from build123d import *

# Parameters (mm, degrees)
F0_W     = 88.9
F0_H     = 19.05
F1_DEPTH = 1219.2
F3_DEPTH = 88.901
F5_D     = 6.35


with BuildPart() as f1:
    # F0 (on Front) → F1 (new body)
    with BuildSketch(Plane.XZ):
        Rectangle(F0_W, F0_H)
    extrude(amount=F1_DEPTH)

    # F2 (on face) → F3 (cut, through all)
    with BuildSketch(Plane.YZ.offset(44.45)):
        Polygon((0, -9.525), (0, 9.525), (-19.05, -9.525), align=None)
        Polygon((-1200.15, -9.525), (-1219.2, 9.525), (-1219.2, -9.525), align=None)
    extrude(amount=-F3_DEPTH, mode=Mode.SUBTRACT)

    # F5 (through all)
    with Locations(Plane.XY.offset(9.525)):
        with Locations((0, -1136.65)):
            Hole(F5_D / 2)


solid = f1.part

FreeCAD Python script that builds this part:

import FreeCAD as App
import Part
import Sketcher
Q = App.Units.Quantity

doc = App.newDocument("Part")
params = doc.addObject("Spreadsheet::Sheet", "Params")
for row, (alias, value) in enumerate([
    ("sketch1_width", "3.5 in"),
    ("sketch1_height", "0.75 in"),
    ("pad1_length", "48 in"),
    ("sketch2_width", "0.75 in"),
    ("sketch3_diameter", "0.25 in"),
    ("hole_diameter", "0.25 in"),
], start=1):
    params.set(f"A{row}", alias)
    params.set(f"B{row}", "=" + value)
    params.setAlias(f"B{row}", alias)

body = doc.addObject("PartDesign::Body", "Body")

# Sketch on XZ plane
sketch1 = doc.addObject("Sketcher::SketchObject", "Sketch")
body.addObject(sketch1)
sketch1.AttachmentSupport = (doc.XZ_Plane, [""])
sketch1.MapMode = "FlatFace"
sketch1.addGeometry(Part.LineSegment(App.Vector(-44, 10, 0), App.Vector(-44, -10, 0)), False)
sketch1.addGeometry(Part.LineSegment(App.Vector(-44, -10, 0), App.Vector(44, -10, 0)), False)
sketch1.addGeometry(Part.LineSegment(App.Vector(44, -10, 0), App.Vector(44, 10, 0)), False)
sketch1.addGeometry(Part.LineSegment(App.Vector(44, 10, 0), App.Vector(-44, 10, 0)), False)
sketch1.addConstraint(Sketcher.Constraint("Coincident", 0, 2, 1, 1))
sketch1.addConstraint(Sketcher.Constraint("Coincident", 1, 2, 2, 1))
sketch1.addConstraint(Sketcher.Constraint("Coincident", 2, 2, 3, 1))
sketch1.addConstraint(Sketcher.Constraint("Coincident", 3, 2, 0, 1))
sketch1.addConstraint(Sketcher.Constraint("Vertical", 0))
sketch1.addConstraint(Sketcher.Constraint("Horizontal", 1))
sketch1.addConstraint(Sketcher.Constraint("Vertical", 2))
sketch1.addConstraint(Sketcher.Constraint("Horizontal", 3))
sketch1.addConstraint(Sketcher.Constraint("Symmetric", 0, 2, 2, 2, -1, 1))
sketch1.addConstraint(Sketcher.Constraint("DistanceX", 1, 1, 1, 2, Q("3.5 in")))
sketch1.addConstraint(Sketcher.Constraint("DistanceY", 0, 2, 0, 1, Q("0.75 in")))
sketch1.setExpression("Constraints[9]", "Params.sketch1_width")
sketch1.setExpression("Constraints[10]", "Params.sketch1_height")
pad1 = doc.addObject("PartDesign::Pad", "Pad")
body.addObject(pad1)
pad1.Profile = sketch1
pad1.setExpression("Length", "Params.pad1_length")

# Sketch on YZ plane
sketch2 = doc.addObject("Sketcher::SketchObject", "Sketch001")
body.addObject(sketch2)
sketch2.AttachmentSupport = (doc.YZ_Plane, [""])
sketch2.MapMode = "FlatFace"
sketch2.AttachmentOffset = App.Placement(App.Vector(0, 0, 1.75 * 25.4), App.Rotation())
sketch2.addGeometry(Part.LineSegment(App.Vector(0, -10, 0), App.Vector(0, 10, 0)), False)
sketch2.addGeometry(Part.LineSegment(App.Vector(0, 10, 0), App.Vector(-19, -10, 0)), False)
sketch2.addGeometry(Part.LineSegment(App.Vector(-19, -10, 0), App.Vector(0, -10, 0)), False)
sketch2.addGeometry(Part.LineSegment(App.Vector(-1200, -10, 0), App.Vector(-1219, 10, 0)), False)
sketch2.addGeometry(Part.LineSegment(App.Vector(-1219, 10, 0), App.Vector(-1219, -10, 0)), False)
sketch2.addGeometry(Part.LineSegment(App.Vector(-1219, -10, 0), App.Vector(-1200, -10, 0)), False)
sketch2.addConstraint(Sketcher.Constraint("Coincident", 0, 2, 1, 1))
sketch2.addConstraint(Sketcher.Constraint("Coincident", 1, 2, 2, 1))
sketch2.addConstraint(Sketcher.Constraint("Coincident", 2, 2, 0, 1))
sketch2.addConstraint(Sketcher.Constraint("Coincident", 3, 2, 4, 1))
sketch2.addConstraint(Sketcher.Constraint("Coincident", 4, 2, 5, 1))
sketch2.addConstraint(Sketcher.Constraint("Coincident", 5, 2, 3, 1))
sketch2.addConstraint(Sketcher.Constraint("Vertical", 0))
sketch2.addConstraint(Sketcher.Constraint("Horizontal", 2))
sketch2.addConstraint(Sketcher.Constraint("Vertical", 4))
sketch2.addConstraint(Sketcher.Constraint("Horizontal", 5))
sketch2.addConstraint(Sketcher.Constraint("Symmetric", 0, 2, 2, 2, -1, 1))
sketch2.addConstraint(Sketcher.Constraint("Perpendicular", 1, 3))
sketch2.addConstraint(Sketcher.Constraint("Horizontal", 0, 2, 3, 2))
sketch2.addConstraint(Sketcher.Constraint("Horizontal", 2, 2, 4, 2))
sketch2.addConstraint(Sketcher.Constraint("Equal", 2, 5))
sketch2.addConstraint(Sketcher.Constraint("DistanceX", 3, 2, -1, 1, Q("48 in")))
sketch2.addConstraint(Sketcher.Constraint("DistanceX", 2, 1, 2, 2, Q("0.75 in")))
sketch2.setExpression("Constraints[16]", "Params.sketch2_width")
pocket1 = doc.addObject("PartDesign::Pocket", "Pocket")
body.addObject(pocket1)
pocket1.Profile = sketch2
pocket1.Type = "ThroughAll"

# Sketch on XY plane
sketch3 = doc.addObject("Sketcher::SketchObject", "Sketch002")
body.addObject(sketch3)
sketch3.AttachmentSupport = (doc.XY_Plane, [""])
sketch3.MapMode = "FlatFace"
sketch3.AttachmentOffset = App.Placement(App.Vector(0, 0, 0.375 * 25.4), App.Rotation())
sketch3.addGeometry(Part.Circle(App.Vector(0, -1136.7, 0), App.Vector(0, 0, 1), 3.2), False)
sketch3.addConstraint(Sketcher.Constraint("PointOnObject", 0, 3, -2))
sketch3.addConstraint(Sketcher.Constraint("Diameter", 0, Q("0.25 in")))
sketch3.addConstraint(Sketcher.Constraint("DistanceY", 0, 3, -1, 1, Q("44.75 in")))
sketch3.setExpression("Constraints[1]", "Params.sketch3_diameter")
doc.recompute()
hole = doc.addObject("PartDesign::Hole", "Hole")
body.addObject(hole)
hole.Profile = sketch3
hole.ThreadType = "None"
hole.setExpression("Diameter", "Params.hole_diameter")
hole.DepthType = "ThroughAll"

doc.recompute()
